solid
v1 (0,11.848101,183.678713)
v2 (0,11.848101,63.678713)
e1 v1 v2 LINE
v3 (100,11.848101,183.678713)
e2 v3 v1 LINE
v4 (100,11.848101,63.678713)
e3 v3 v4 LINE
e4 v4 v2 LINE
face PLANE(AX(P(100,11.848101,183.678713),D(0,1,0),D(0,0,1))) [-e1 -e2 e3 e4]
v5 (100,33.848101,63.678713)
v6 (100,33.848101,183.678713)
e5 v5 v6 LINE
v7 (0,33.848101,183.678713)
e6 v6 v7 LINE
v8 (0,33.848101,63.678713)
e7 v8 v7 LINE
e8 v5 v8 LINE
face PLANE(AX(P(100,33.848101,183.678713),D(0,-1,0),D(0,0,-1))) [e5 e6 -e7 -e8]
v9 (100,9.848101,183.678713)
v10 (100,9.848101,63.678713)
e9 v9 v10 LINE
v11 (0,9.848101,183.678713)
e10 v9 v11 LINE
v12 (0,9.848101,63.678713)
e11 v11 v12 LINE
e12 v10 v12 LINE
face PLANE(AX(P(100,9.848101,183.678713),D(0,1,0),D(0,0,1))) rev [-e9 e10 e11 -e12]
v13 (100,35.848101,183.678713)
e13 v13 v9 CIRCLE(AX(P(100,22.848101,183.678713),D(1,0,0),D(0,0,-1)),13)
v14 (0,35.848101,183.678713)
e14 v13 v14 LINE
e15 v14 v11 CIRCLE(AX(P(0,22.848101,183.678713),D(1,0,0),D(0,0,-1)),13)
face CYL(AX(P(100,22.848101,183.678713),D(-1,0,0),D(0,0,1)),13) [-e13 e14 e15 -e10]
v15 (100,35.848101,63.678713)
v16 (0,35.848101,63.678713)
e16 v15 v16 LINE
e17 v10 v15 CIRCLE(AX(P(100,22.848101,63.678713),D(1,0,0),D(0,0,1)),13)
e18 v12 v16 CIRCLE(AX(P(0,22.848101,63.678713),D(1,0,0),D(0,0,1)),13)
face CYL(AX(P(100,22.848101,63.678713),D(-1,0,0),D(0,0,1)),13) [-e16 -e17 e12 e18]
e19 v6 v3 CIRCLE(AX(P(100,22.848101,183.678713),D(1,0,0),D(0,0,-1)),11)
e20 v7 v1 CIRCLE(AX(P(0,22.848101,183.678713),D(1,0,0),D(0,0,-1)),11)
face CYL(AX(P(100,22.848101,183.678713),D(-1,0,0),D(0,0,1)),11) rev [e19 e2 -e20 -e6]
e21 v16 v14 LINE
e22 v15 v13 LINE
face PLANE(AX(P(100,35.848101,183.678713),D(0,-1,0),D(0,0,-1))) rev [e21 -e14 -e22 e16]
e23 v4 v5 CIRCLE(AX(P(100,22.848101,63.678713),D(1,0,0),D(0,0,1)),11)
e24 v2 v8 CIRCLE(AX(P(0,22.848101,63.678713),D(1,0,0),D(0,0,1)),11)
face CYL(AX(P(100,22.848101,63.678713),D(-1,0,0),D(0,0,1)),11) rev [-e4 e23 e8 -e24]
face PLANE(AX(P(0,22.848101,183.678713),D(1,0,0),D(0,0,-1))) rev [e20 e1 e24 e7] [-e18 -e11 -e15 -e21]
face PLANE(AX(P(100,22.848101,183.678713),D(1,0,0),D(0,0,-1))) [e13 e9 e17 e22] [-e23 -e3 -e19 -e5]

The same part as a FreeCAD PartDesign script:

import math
import FreeCAD as App
import Part
import Sketcher
from FreeCAD import Vector

doc = App.newDocument("Part")
body = doc.addObject("PartDesign::Body", "Body")

# Sketch on YZ plane
sketch1 = body.newObject("Sketcher::SketchObject", "Sketch")
sketch1.AttachmentSupport = (doc.getObject("YZ_Plane"), [""])
sketch1.MapMode = "FlatFace"
sketch1.addGeometry([
    Part.LineSegment(Vector(35.848101, 63.678713, 0), Vector(35.848101, 183.678713, 0)),  # 0
    Part.ArcOfCircle(Part.Circle(Vector(22.848101, 183.678713, 0), Vector(0, 0, 1), 13), math.radians(0), math.radians(180)),  # 1
    Part.LineSegment(Vector(9.848101, 183.678713, 0), Vector(9.848101, 63.678713, 0)),  # 2
    Part.ArcOfCircle(Part.Circle(Vector(22.848101, 63.678713, 0), Vector(0, 0, 1), 13), math.radians(180), math.radians(360)),  # 3
    Part.ArcOfCircle(Part.Circle(Vector(22.848101, 183.678713, 0), Vector(0, 0, 1), 11), math.radians(0), math.radians(180)),  # 4
    Part.LineSegment(Vector(33.848101, 183.678713, 0), Vector(33.848101, 63.678713, 0)),  # 5
    Part.ArcOfCircle(Part.Circle(Vector(22.848101, 63.678713, 0), Vector(0, 0, 1), 11), math.radians(180), math.radians(360)),  # 6
    Part.LineSegment(Vector(11.848101, 63.678713, 0), Vector(11.848101, 183.678713, 0)),  # 7
], False)
sketch1.addConstraint([
    Sketcher.Constraint("Tangent", 0, 2, 1, 1),
    Sketcher.Constraint("Tangent", 1, 2, 2, 1),
    Sketcher.Constraint("Tangent", 2, 2, 3, 1),
    Sketcher.Constraint("Tangent", 3, 2, 0, 1),
    Sketcher.Constraint("Tangent", 4, 1, 5, 1),
    Sketcher.Constraint("Tangent", 5, 2, 6, 2),
    Sketcher.Constraint("Tangent", 6, 1, 7, 1),
    Sketcher.Constraint("Tangent", 7, 2, 4, 2),
    Sketcher.Constraint("Vertical", 0),
    Sketcher.Constraint("Vertical", 2),
    Sketcher.Constraint("Vertical", 5),
    Sketcher.Constraint("Vertical", 7),
    Sketcher.Constraint("Coincident", 4, 3, 1, 3),
    Sketcher.Constraint("Horizontal", 6, 3, 2, 2),
    Sketcher.Constraint("Radius", 1, 13.0),
    Sketcher.Constraint("Radius", 4, 11.0),
    Sketcher.Constraint("DistanceY", 0, 1, 0, 2, 120.0),
    Sketcher.Constraint("DistanceX", -1, 1, 1, 3, 22.848101),
    Sketcher.Constraint("DistanceY", -1, 1, 1, 3, 183.678713),
])
pad1 = body.newObject("PartDesign::Pad", "Pad")
pad1.Profile = sketch1
pad1.Length = 100

doc.recompute()
